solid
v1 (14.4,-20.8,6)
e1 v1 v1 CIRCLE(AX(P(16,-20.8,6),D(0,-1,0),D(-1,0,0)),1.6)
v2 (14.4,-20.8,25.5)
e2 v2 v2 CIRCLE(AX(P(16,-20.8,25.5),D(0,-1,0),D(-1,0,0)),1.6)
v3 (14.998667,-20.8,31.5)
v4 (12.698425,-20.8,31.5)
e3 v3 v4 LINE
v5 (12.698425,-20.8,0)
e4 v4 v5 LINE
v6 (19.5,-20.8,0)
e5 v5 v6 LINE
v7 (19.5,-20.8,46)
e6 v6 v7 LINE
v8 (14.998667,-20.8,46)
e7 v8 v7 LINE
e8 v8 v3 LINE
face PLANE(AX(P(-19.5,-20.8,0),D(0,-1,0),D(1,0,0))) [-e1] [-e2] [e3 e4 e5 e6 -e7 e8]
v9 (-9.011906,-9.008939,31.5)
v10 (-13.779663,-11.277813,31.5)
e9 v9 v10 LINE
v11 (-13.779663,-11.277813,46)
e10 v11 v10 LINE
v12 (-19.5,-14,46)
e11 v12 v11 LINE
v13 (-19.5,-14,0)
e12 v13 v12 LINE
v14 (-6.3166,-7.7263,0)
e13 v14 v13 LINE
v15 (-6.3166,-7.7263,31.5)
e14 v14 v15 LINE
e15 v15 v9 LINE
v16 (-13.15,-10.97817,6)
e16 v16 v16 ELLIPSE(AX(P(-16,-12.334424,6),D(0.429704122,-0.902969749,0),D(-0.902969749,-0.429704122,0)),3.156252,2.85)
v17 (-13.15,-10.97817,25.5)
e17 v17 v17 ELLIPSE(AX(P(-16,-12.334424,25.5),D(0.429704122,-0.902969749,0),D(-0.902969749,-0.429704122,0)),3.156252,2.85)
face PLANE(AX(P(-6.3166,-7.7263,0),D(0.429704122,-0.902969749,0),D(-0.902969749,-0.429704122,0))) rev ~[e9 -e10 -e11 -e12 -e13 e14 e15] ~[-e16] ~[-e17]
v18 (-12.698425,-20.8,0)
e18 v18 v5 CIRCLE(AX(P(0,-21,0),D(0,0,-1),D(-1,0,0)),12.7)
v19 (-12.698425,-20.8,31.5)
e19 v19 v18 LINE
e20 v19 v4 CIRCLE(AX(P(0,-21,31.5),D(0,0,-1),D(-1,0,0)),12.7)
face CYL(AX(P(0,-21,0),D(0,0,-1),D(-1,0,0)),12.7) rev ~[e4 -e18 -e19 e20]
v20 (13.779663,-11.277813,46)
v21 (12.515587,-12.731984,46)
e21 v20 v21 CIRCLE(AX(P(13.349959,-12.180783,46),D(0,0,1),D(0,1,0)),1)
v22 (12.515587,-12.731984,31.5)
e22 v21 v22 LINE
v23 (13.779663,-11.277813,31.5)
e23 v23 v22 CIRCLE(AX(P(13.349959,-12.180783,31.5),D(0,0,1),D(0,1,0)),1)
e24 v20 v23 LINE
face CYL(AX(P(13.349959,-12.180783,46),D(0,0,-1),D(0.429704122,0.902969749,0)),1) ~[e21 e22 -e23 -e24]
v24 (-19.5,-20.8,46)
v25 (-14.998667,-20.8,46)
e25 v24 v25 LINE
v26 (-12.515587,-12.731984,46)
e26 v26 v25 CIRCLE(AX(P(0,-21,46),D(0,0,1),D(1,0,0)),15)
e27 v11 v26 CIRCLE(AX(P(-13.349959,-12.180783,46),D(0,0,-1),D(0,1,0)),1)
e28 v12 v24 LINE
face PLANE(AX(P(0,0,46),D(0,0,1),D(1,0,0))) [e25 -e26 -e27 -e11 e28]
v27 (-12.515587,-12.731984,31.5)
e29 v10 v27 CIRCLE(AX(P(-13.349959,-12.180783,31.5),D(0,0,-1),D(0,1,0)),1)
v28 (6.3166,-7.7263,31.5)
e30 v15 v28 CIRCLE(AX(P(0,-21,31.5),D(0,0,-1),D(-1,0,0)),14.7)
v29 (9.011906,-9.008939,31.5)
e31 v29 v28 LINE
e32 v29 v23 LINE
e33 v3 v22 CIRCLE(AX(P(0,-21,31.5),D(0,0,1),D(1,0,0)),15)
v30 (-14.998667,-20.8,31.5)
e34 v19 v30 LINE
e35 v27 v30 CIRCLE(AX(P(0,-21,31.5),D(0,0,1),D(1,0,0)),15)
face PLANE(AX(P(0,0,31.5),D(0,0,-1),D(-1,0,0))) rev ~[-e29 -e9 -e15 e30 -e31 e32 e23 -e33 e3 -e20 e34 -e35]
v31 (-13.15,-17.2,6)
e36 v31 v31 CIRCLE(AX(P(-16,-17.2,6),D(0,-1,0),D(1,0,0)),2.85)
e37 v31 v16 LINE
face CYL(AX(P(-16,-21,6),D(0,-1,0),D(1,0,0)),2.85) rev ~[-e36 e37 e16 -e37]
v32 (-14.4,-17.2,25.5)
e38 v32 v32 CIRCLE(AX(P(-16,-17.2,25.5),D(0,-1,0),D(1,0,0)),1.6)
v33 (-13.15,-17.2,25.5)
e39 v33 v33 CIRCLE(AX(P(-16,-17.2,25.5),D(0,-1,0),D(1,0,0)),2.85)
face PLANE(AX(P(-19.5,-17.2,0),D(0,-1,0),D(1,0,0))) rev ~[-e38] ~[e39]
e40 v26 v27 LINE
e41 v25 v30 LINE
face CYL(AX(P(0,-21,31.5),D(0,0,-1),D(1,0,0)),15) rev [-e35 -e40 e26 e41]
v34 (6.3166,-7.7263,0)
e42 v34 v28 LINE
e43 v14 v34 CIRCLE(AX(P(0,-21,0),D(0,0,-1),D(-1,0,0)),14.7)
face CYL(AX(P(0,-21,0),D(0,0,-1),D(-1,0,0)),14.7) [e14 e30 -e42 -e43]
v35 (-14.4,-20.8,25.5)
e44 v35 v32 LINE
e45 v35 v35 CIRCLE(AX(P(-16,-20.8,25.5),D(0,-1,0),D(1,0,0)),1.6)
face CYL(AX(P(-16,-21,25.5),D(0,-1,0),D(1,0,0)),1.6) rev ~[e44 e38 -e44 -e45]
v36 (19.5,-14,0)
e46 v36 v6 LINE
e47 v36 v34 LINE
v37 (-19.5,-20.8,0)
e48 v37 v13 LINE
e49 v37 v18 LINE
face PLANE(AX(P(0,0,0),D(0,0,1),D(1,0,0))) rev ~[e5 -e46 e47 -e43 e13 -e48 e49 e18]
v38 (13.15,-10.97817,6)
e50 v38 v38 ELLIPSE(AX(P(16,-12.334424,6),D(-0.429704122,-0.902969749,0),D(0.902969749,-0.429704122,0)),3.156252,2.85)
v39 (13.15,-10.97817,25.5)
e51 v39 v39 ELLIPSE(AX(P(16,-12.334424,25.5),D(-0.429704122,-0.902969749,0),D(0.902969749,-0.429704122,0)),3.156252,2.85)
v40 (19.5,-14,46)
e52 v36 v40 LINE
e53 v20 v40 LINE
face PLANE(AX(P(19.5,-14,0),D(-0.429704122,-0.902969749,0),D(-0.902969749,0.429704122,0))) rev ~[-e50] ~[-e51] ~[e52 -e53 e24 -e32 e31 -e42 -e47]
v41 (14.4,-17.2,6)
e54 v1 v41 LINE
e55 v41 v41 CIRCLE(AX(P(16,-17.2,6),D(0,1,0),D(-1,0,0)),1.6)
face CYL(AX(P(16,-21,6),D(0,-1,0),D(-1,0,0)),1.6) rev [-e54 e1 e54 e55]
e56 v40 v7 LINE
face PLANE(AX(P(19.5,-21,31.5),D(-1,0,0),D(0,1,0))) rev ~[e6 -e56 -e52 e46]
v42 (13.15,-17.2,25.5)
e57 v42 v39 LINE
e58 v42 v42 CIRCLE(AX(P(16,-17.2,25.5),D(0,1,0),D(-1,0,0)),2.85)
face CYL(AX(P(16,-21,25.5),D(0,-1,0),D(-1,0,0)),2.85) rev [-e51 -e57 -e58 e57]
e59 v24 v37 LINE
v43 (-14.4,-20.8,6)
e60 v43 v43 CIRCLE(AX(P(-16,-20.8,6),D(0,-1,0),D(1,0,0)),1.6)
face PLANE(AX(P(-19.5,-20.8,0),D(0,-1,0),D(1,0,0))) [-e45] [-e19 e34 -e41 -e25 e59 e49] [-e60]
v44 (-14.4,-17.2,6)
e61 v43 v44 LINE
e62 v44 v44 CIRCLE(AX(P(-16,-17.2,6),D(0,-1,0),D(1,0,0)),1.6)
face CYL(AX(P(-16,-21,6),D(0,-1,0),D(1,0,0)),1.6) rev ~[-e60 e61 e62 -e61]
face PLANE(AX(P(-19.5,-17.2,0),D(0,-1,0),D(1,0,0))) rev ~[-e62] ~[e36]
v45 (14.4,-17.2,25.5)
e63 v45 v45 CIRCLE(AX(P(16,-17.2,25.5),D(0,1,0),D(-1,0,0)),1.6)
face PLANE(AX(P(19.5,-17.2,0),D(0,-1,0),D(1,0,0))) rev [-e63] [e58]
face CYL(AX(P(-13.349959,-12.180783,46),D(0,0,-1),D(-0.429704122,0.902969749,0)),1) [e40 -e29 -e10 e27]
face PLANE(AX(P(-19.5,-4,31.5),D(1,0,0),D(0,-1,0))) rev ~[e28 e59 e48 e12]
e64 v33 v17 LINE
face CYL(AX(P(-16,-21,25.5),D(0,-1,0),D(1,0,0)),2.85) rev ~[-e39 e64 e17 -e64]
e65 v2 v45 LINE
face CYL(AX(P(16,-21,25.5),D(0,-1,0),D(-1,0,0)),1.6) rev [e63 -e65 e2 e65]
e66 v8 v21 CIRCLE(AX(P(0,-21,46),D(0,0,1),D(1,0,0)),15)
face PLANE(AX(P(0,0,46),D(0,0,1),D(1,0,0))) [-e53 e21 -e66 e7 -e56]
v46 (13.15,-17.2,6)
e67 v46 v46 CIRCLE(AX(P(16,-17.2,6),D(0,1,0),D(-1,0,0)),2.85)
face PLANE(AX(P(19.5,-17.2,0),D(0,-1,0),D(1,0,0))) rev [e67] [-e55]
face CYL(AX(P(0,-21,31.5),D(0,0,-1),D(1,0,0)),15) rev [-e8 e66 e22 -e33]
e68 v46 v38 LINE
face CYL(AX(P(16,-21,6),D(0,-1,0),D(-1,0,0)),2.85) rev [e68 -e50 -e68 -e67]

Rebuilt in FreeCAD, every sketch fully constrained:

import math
import FreeCAD as App
import Part
import Sketcher


def edges_at(feature, points):
    """Names of the edges that pass closest to the given points."""
    edges = feature.Shape.Edges
    near = lambda p: min(range(len(edges)), key=lambda i: edges[i].distToShape(Part.Vertex(*p))[0])
    return sorted({f"Edge{near(p) + 1}" for p in points})


def add_polygon(sketch, points):
    """Adds a closed chain of lines whose ends are joined by coincident constraints."""
    first, n = sketch.GeometryCount, len(points)
    for a, b in zip(points, points[1:] + points[:1]):
        sketch.addGeometry(Part.LineSegment(App.Vector(*a, 0), App.Vector(*b, 0)), False)
    for i in range(n):
        sketch.addConstraint(Sketcher.Constraint("Coincident", first + i, 2, first + (i + 1) % n, 1))

doc = App.newDocument("Part")
params = doc.addObject("Spreadsheet::Sheet", "Params")
for row, (alias, value) in enumerate([
    ("sketch1_width", "39 mm"),
    ("sketch1_width2", "23.5 mm"),
    ("pad1_length", "46 mm"),
    ("sketch2_radius", "12.7 mm"),
    ("sketch2_width", "39 mm"),
    ("sketch2_height", "17 mm"),
    ("pad2_length", "31.5 mm"),
    ("sketch3_radius", "15 mm"),
    ("sketch3_width", "39 mm"),
    ("sketch3_height", "17 mm"),
    ("pad3_length", "14.5 mm"),
    ("sketch4_diameter", "5.7 mm"),
    ("sketch5_diameter", "3.2 mm"),
    ("sketch5_diameter2", "5.7 mm"),
    ("pad4_length", "3.8 mm"),
    ("sketch6_width", "7 mm"),
    ("sketch6_radius", "14.7 mm"),
    ("sketch6_width2", "23.5 mm"),
    ("sketch6_height", "17.2 mm"),
    ("pocket3_length", "0.2 mm"),
    ("fillet_radius", "1 mm"),
], start=1):
    params.set(f"A{row}", alias)
    params.set(f"B{row}", "=" + value)
    params.setAlias(f"B{row}", alias)

body = doc.addObject("PartDesign::Body", "Body")

# Sketch on XY plane
sketch1 = body.newObject("Sketcher::SketchObject", "Sketch")
sketch1.AttachmentSupport = (doc.getObject("XY_Plane"), [""])
sketch1.MapMode = "FlatFace"
add_polygon(sketch1, [(-11.8, 0), (-12.5, 3.2), (-19.5, 3.2), (-19.5, -4), (19.5, -4), (19.5, 3.2), (12.5, 3.2), (11.8, 0)])  # lines 0-7
sketch1.addConstraint([
    Sketcher.Constraint("Horizontal", 1),
    Sketcher.Constraint("Vertical", 2),
    Sketcher.Constraint("Horizontal", 3),
    Sketcher.Constraint("Vertical", 4),
    Sketcher.Constraint("Horizontal", 5),
    Sketcher.Constraint("Horizontal", 7),
    Sketcher.Constraint("Symmetric", 6, 2, 7, 2, -1, 1),
    Sketcher.Constraint("Symmetric", 1, 2, 4, 2, -2),
    Sketcher.Constraint("Equal", 1, 5),
    Sketcher.Constraint("DistanceX", 3, 1, 3, 2, 39.0),
    Sketcher.Constraint("DistanceX", 7, 2, 7, 1, 23.5),
    Sketcher.Constraint("DistanceY", 2, 2, -1, 1, 4.0),
    Sketcher.Constraint("DistanceX", 0, 2, 5, 2, 25.0),
    Sketcher.Constraint("DistanceY", -1, 1, 0, 2, 3.2),
])
sketch1.setExpression("Constraints[17]", "Params.sketch1_width")
sketch1.setExpression("Constraints[18]", "Params.sketch1_width2")
pad1 = body.newObject("PartDesign::Pad", "Pad")
pad1.Profile = sketch1
pad1.setExpression("Length", "Params.pad1_length")

# Sketch on XY plane
sketch2 = body.newObject("Sketcher::SketchObject", "Sketch001")
sketch2.AttachmentSupport = (doc.getObject("XY_Plane"), [""])
sketch2.MapMode = "FlatFace"
sketch2.addGeometry([
    Part.LineSegment(App.Vector(-20, -21, 0), App.Vector(-20, -4, 0)),  # 0
    Part.LineSegment(App.Vector(-20, -4, 0), App.Vector(20, -4, 0)),  # 1
    Part.LineSegment(App.Vector(20, -4, 0), App.Vector(20, -21, 0)),  # 2
    Part.LineSegment(App.Vector(20, -21, 0), App.Vector(13, -21, 0)),  # 3
    Part.ArcOfCircle(Part.Circle(App.Vector(0, -21, 0), App.Vector(0, 0, 1), 13), math.radians(0), math.radians(180)),  # 4
    Part.LineSegment(App.Vector(-13, -21, 0), App.Vector(-20, -21, 0)),  # 5
], False)
sketch2.addConstraint([
    Sketcher.Constraint("Coincident", 0, 2, 1, 1),
    Sketcher.Constraint("Coincident", 1, 2, 2, 1),
    Sketcher.Constraint("Coincident", 2, 2, 3, 1),
    Sketcher.Constraint("Coincident", 3, 2, 4, 1),
    Sketcher.Constraint("Coincident", 4, 2, 5, 1),
    Sketcher.Constraint("Coincident", 5, 2, 0, 1),
    Sketcher.Constraint("Vertical", 0),
    Sketcher.Constraint("Horizontal", 1),
    Sketcher.Constraint("Vertical", 2),
    Sketcher.Constraint("Horizontal", 3),
    Sketcher.Constraint("Horizontal", 5),
    Sketcher.Constraint("Symmetric", 3, 2, 4, 2, -2),
    Sketcher.Constraint("Horizontal", 4, 3, 2, 2),
    Sketcher.Constraint("Equal", 3, 5),
    Sketcher.Constraint("Radius", 4, 12.7),
    Sketcher.Constraint("DistanceX", 1, 1, 1, 2, 39.0),
    Sketcher.Constraint("DistanceY", 0, 1, 0, 2, 17.0),
    Sketcher.Constraint("DistanceY", 4, 3, -1, 1, 21.0),
])
sketch2.setExpression("Constraints[14]", "Params.sketch2_radius")
sketch2.setExpression("Constraints[15]", "Params.sketch2_width")
sketch2.setExpression("Constraints[16]", "Params.sketch2_height")
pad2 = body.newObject("PartDesign::Pad", "Pad001")
pad2.Profile = sketch2
pad2.setExpression("Length", "Params.pad2_length")

# Sketch on XY plane
sketch3 = body.newObject("Sketcher::SketchObject", "Sketch002")
sketch3.AttachmentSupport = (doc.getObject("XY_Plane"), [""])
sketch3.MapMode = "FlatFace"
sketch3.AttachmentOffset = App.Placement(App.Vector(0, 0, 31.5), App.Rotation())
sketch3.addGeometry([
    Part.LineSegment(App.Vector(19.5, -4, 0), App.Vector(-19.5, -4, 0)),  # 0
    Part.LineSegment(App.Vector(-19.5, -4, 0), App.Vector(-19.5, -21, 0)),  # 1
    Part.LineSegment(App.Vector(-19.5, -21, 0), App.Vector(-15, -21, 0)),  # 2
    Part.ArcOfCircle(Part.Circle(App.Vector(0, -21, 0), App.Vector(0, 0, 1), 15), math.radians(0), math.radians(180)),  # 3
    Part.LineSegment(App.Vector(15, -21, 0), App.Vector(19.5, -21, 0)),  # 4
    Part.LineSegment(App.Vector(19.5, -21, 0), App.Vector(19.5, -4, 0)),  # 5
], False)
sketch3.addConstraint([
    Sketcher.Constraint("Coincident", 0, 2, 1, 1),
    Sketcher.Constraint("Coincident", 1, 2, 2, 1),
    Sketcher.Constraint("Coincident", 2, 2, 3, 2),
    Sketcher.Constraint("Coincident", 3, 1, 4, 1),
    Sketcher.Constraint("Coincident", 4, 2, 5, 1),
    Sketcher.Constraint("Coincident", 5, 2, 0, 1),
    Sketcher.Constraint("Horizontal", 0),
    Sketcher.Constraint("Vertical", 1),
    Sketcher.Constraint("Horizontal", 2),
    Sketcher.Constraint("Horizontal", 4),
    Sketcher.Constraint("Vertical", 5),
    Sketcher.Constraint("Symmetric", 2, 2, 3, 1, -2),
    Sketcher.Constraint("Horizontal", 3, 3, 1, 2),
    Sketcher.Constraint("Equal", 2, 4),
    Sketcher.Constraint("Radius", 3, 15.0),
    Sketcher.Constraint("DistanceX", 0, 2, 0, 1, 39.0),
    Sketcher.Constraint("DistanceY", 1, 2, 1, 1, 17.0),
    Sketcher.Constraint("DistanceY", 3, 3, -1, 1, 21.0),
])
sketch3.setExpression("Constraints[14]", "Params.sketch3_radius")
sketch3.setExpression("Constraints[15]", "Params.sketch3_width")
sketch3.setExpression("Constraints[16]", "Params.sketch3_height")
pad3 = body.newObject("PartDesign::Pad", "Pad002")
pad3.Profile = sketch3
pad3.setExpression("Length", "Params.pad3_length")

# Sketch on XZ plane
sketch4 = body.newObject("Sketcher::SketchObject", "Sketch003")
sketch4.AttachmentSupport = (doc.getObject("XZ_Plane"), [""])
sketch4.MapMode = "FlatFace"
sketch4.AttachmentOffset = App.Placement(App.Vector(0, 0, 21), App.Rotation())
sketch4.addGeometry([
    Part.Circle(App.Vector(-16, 6, 0), App.Vector(0, 0, 1), 2.9),
    Part.Circle(App.Vector(-16, 25.5, 0), App.Vector(0, 0, 1), 2.9),
], False)
sketch4.addConstraint([
    Sketcher.Constraint("Equal", 0, 1),
    Sketcher.Constraint("Vertical", 0, 3, 1, 3),
    Sketcher.Constraint("Diameter", 0, 5.7),
    Sketcher.Constraint("DistanceX", 0, 3, -1, 1, 16.0),
    Sketcher.Constraint("DistanceY", -1, 1, 0, 3, 6.0),
    Sketcher.Constraint("DistanceY", -1, 1, 1, 3, 25.5),
])
sketch4.setExpression("Constraints[2]", "Params.sketch4_diameter")
pocket1 = body.newObject("PartDesign::Pocket", "Pocket")
pocket1.Profile = sketch4
pocket1.Type = "ThroughAll"

# Sketch on XZ plane
sketch5 = body.newObject("Sketcher::SketchObject", "Sketch004")
sketch5.AttachmentSupport = (doc.getObject("XZ_Plane"), [""])
sketch5.MapMode = "FlatFace"
sketch5.AttachmentOffset = App.Placement(App.Vector(0, 0, 21), App.Rotation())
sketch5.addGeometry([
    Part.Circle(App.Vector(-16, 25.5, 0), App.Vector(0, 0, 1), 2.9),
    Part.Circle(App.Vector(-16, 25.5, 0), App.Vector(0, 0, 1), 1.6),
    Part.Circle(App.Vector(-16, 6, 0), App.Vector(0, 0, 1), 2.9),
    Part.Circle(App.Vector(-16, 6, 0), App.Vector(0, 0, 1), 1.6),
], False)
sketch5.addConstraint([
    Sketcher.Constraint("Coincident", 1, 3, 0, 3),
    Sketcher.Constraint("Coincident", 3, 3, 2, 3),
    Sketcher.Constraint("Equal", 0, 2),
    Sketcher.Constraint("Equal", 1, 3),
    Sketcher.Constraint("Vertical", 1, 3, 2, 3),
    Sketcher.Constraint("Diameter", 1, 3.2),
    Sketcher.Constraint("Diameter", 0, 5.7),
    Sketcher.Constraint("DistanceX", 0, 3, -1, 1, 16.0),
    Sketcher.Constraint("DistanceY", -1, 1, 2, 3, 6.0),
    Sketcher.Constraint("DistanceY", -1, 1, 0, 3, 25.5),
])
sketch5.setExpression("Constraints[5]", "Params.sketch5_diameter")
sketch5.setExpression("Constraints[6]", "Params.sketch5_diameter2")
pad4 = body.newObject("PartDesign::Pad", "Pad003")
pad4.Profile = sketch5
pad4.setExpression("Length", "Params.pad4_length")
pad4.Reversed = True
doc.recompute()

mirrored = body.newObject("PartDesign::Mirrored", "Mirrored")
mirrored.Originals = [pocket1, pad4]
mirrored.MirrorPlane = (doc.getObject("YZ_Plane"), [""])
body.Tip = mirrored

# Sketch on XY plane
sketch6 = body.newObject("Sketcher::SketchObject", "Sketch005")
sketch6.AttachmentSupport = (doc.getObject("XY_Plane"), [""])
sketch6.MapMode = "FlatFace"
sketch6.addGeometry([
    Part.ArcOfCircle(Part.Circle(App.Vector(0, -21, 0), App.Vector(0, 0, 1), 14.7), math.radians(65), math.radians(115)),  # 0
    Part.LineSegment(App.Vector(-6.3, -7.7, 0), App.Vector(-19.5, -14, 0)),  # 1
    Part.LineSegment(App.Vector(-19.5, -14, 0), App.Vector(-19.5, 3.2, 0)),  # 2
    Part.LineSegment(App.Vector(-19.5, 3.2, 0), App.Vector(-12.5, 3.2, 0)),  # 3
    Part.LineSegment(App.Vector(-12.5, 3.2, 0), App.Vector(-11.8, 0, 0)),  # 4
    Part.LineSegment(App.Vector(-11.8, 0, 0), App.Vector(11.8, 0, 0)),  # 5
    Part.LineSegment(App.Vector(11.8, 0, 0), App.Vector(12.5, 3.2, 0)),  # 6
    Part.LineSegment(App.Vector(12.5, 3.2, 0), App.Vector(19.5, 3.2, 0)),  # 7
    Part.LineSegment(App.Vector(19.5, 3.2, 0), App.Vector(19.5, -14, 0)),  # 8
    Part.LineSegment(App.Vector(19.5, -14, 0), App.Vector(6.3, -7.7, 0)),  # 9
], False)
sketch6.addConstraint([
    Sketcher.Constraint("Tangent", 0, 2, 1, 1),
    Sketcher.Constraint("Coincident", 1, 2, 2, 1),
    Sketcher.Constraint("Coincident", 2, 2, 3, 1),
    Sketcher.Constraint("Coincident", 3, 2, 4, 1),
    Sketcher.Constraint("Coincident", 4, 2, 5, 1),
    Sketcher.Constraint("Coincident", 5, 2, 6, 1),
    Sketcher.Constraint("Coincident", 6, 2, 7, 1),
    Sketcher.Constraint("Coincident", 7, 2, 8, 1),
    Sketcher.Constraint("Coincident", 8, 2, 9, 1),
    Sketcher.Constraint("Tangent", 9, 2, 0, 1),
    Sketcher.Constraint("Vertical", 2),
    Sketcher.Constraint("Horizontal", 3),
    Sketcher.Constraint("Horizontal", 5),
    Sketcher.Constraint("Horizontal", 7),
    Sketcher.Constraint("Vertical", 8),
    Sketcher.Constraint("Symmetric", 4, 2, 5, 2, -1, 1),
    Sketcher.Constraint("Symmetric", 3, 2, 6, 2, -2),
    Sketcher.Constraint("Symmetric", 1, 2, 8, 2, -2),
    Sketcher.Constraint("PointOnObject", 0, 3, -2),
    Sketcher.Constraint("DistanceX", 3, 1, 3, 2, 7.0),
    Sketcher.Constraint("DistanceY", 0, 3, 1, 2, 7.0),
    Sketcher.Constraint("Radius", 0, 14.7),
    Sketcher.Constraint("DistanceX", 5, 1, 5, 2, 23.5),
    Sketcher.Constraint("DistanceY", 2, 1, 2, 2, 17.2),
    Sketcher.Constraint("DistanceY", 0, 3, -1, 1, 21.0),
    Sketcher.Constraint("DistanceX", 3, 2, 6, 2, 25.0),
])
sketch6.setExpression("Constraints[19]", "Params.sketch6_width")
sketch6.setExpression("Constraints[21]", "Params.sketch6_radius")
sketch6.setExpression("Constraints[22]", "Params.sketch6_width2")
sketch6.setExpression("Constraints[23]", "Params.sketch6_height")
pocket2 = body.newObject("PartDesign::Pocket", "Pocket001")
pocket2.Profile = sketch6
pocket2.Type = "ThroughAll"
pocket2.Reversed = True

# Sketch on XZ plane
sketch7 = body.newObject("Sketcher::SketchObject", "Sketch006")
sketch7.AttachmentSupport = (doc.getObject("XZ_Plane"), [""])
sketch7.MapMode = "FlatFace"
sketch7.AttachmentOffset = App.Placement(App.Vector(0, 0, 21), App.Rotation())
add_polygon(sketch7, [(38, 72), (-53, 72), (-53, -16), (38, -16)])  # lines 0-3
sketch7.addConstraint([
    Sketcher.Constraint("Horizontal", 0),
    Sketcher.Constraint("Vertical", 1),
    Sketcher.Constraint("Horizontal", 2),
    Sketcher.Constraint("Vertical", 3),
    Sketcher.Constraint("DistanceX", 0, 2, 0, 1, 90.5644),
    Sketcher.Constraint("DistanceY", 1, 2, 1, 1, 87.9505),
    Sketcher.Constraint("DistanceX", 0, 2, -1, 1, 52.6912),
    Sketcher.Constraint("DistanceY", -1, 1, 0, 2, 72.2952),
])
pocket3 = body.newObject("PartDesign::Pocket", "Pocket002")
pocket3.Profile = sketch7
pocket3.setExpression("Length", "Params.pocket3_length")
doc.recompute()

fillet = body.newObject("PartDesign::Fillet", "Fillet")
fillet.Base = (pocket3, edges_at(pocket3, [(-9.012, -9.009, 38.75), (9.012, -9.009, 38.75)]))
fillet.setExpression("Radius", "Params.fillet_radius")

doc.recompute()
